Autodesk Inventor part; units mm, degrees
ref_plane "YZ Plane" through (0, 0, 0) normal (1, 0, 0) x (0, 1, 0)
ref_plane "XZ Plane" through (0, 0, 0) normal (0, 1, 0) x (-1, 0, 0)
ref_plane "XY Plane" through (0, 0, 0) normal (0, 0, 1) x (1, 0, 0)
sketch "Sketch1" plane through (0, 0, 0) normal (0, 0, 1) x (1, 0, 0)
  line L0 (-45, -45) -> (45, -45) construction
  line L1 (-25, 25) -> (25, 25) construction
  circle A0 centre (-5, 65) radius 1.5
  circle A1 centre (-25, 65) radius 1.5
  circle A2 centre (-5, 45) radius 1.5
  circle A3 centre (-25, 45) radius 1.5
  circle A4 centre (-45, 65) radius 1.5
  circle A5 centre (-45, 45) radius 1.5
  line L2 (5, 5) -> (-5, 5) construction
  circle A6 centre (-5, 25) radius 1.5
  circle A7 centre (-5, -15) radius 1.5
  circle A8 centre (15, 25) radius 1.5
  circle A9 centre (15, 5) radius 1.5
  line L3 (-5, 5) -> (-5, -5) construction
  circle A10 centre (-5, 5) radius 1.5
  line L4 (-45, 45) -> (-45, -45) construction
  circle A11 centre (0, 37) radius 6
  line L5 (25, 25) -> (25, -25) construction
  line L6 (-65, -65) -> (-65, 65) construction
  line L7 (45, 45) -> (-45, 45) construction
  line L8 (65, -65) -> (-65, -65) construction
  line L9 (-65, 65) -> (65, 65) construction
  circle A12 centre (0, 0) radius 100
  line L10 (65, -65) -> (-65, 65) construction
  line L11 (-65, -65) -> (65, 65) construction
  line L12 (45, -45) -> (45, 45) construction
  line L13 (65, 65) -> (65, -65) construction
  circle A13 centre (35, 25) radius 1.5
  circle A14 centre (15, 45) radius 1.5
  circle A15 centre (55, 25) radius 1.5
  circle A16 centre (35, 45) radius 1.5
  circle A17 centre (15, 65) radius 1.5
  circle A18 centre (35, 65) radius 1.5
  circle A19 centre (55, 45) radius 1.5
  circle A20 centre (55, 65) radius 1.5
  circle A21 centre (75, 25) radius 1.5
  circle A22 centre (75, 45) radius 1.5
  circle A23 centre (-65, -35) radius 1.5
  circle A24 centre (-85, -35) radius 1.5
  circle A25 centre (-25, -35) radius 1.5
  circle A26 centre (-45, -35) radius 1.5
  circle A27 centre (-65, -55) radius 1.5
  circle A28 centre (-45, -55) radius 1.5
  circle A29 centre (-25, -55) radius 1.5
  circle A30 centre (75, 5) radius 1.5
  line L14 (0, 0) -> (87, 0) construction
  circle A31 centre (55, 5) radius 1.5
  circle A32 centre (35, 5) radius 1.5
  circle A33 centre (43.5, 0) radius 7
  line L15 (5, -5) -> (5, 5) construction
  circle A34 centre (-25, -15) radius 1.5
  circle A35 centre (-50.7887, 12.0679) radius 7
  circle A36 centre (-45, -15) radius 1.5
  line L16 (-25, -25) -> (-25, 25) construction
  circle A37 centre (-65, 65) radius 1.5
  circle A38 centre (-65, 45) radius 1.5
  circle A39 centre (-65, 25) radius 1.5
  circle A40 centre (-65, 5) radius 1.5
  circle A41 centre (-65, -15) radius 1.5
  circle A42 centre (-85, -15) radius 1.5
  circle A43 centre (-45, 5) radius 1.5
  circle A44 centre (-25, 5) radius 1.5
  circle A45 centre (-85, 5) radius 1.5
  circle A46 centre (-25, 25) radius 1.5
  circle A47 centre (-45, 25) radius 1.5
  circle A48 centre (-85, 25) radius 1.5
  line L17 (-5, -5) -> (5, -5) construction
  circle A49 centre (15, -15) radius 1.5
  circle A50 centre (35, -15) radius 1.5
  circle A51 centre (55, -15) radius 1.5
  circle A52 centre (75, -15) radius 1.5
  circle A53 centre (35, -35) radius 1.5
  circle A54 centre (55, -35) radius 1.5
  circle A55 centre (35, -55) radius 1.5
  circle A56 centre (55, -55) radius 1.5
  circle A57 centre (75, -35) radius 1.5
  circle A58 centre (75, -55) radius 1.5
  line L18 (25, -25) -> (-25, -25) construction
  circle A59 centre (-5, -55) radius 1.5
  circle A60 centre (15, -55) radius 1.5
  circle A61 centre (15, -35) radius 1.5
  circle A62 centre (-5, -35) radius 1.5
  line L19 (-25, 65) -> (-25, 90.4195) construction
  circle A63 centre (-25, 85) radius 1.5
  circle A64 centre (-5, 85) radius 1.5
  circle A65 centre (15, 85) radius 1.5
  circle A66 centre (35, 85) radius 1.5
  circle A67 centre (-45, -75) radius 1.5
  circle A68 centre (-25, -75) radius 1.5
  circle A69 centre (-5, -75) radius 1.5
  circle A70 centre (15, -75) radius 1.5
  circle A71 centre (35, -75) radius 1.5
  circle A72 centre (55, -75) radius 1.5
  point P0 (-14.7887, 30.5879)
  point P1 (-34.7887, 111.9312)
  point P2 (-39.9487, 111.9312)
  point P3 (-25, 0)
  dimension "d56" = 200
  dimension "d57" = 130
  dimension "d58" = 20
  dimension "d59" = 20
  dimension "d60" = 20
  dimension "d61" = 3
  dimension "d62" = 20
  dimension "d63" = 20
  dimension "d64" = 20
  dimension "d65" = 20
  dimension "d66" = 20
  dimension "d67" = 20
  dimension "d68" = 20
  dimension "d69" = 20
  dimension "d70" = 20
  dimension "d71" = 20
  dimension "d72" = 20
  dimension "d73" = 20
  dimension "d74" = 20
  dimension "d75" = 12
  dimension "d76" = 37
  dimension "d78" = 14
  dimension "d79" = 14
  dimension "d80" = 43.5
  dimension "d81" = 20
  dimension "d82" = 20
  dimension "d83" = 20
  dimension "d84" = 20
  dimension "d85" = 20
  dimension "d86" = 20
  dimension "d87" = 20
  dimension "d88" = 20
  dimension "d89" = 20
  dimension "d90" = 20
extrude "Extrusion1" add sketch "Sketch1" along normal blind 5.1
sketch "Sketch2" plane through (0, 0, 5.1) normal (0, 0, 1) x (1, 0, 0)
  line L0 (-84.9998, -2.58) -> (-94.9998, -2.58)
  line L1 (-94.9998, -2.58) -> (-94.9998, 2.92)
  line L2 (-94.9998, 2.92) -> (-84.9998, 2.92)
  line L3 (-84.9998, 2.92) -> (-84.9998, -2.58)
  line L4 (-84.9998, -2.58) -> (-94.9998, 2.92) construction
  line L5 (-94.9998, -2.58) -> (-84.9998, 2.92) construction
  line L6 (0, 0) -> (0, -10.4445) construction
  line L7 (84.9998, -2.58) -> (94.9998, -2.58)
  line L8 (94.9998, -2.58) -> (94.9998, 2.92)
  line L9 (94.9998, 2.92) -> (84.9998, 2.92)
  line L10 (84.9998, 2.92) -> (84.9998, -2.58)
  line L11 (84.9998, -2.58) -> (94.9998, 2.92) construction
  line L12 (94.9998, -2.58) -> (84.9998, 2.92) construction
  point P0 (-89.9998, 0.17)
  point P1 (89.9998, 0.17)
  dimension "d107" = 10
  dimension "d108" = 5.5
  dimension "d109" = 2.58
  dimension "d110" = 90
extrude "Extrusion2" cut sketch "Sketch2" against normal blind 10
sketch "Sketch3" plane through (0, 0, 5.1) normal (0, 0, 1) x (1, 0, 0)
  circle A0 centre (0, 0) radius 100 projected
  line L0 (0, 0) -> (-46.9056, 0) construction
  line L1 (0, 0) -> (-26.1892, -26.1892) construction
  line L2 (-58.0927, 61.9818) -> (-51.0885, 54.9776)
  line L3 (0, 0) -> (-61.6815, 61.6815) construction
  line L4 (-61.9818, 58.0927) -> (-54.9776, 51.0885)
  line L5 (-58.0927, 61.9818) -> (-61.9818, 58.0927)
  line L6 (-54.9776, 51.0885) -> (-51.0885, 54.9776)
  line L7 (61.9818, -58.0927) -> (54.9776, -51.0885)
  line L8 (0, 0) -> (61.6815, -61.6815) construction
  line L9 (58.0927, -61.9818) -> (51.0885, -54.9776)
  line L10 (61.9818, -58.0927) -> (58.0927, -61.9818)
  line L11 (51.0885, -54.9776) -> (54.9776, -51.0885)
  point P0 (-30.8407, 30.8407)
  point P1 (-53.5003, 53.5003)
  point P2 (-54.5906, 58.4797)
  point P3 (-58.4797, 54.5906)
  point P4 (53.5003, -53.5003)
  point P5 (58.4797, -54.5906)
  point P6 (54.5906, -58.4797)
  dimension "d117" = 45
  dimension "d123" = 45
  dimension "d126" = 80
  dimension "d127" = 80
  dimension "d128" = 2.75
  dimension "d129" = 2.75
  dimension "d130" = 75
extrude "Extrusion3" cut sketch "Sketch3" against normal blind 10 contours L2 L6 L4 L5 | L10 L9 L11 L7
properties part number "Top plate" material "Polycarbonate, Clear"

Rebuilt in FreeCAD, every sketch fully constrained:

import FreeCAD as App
import Part
import Sketcher
from FreeCAD import Vector
Q = App.Units.Quantity


def add_polygon(sketch, points):
    """Adds a closed chain of lines whose ends are joined by coincident constraints."""
    first, n = sketch.GeometryCount, len(points)
    for a, b in zip(points, points[1:] + points[:1]):
        sketch.addGeometry(Part.LineSegment(App.Vector(*a, 0), App.Vector(*b, 0)), False)
    for i in range(n):
        sketch.addConstraint(Sketcher.Constraint("Coincident", first + i, 2, first + (i + 1) % n, 1))

doc = App.newDocument("Part")
body = doc.addObject("PartDesign::Body", "Body")

sketch1 = body.newObject("Sketcher::SketchObject", "Sketch")
sketch1.AttachmentSupport = (doc.getObject("XY_Plane"), [""])
sketch1.MapMode = "FlatFace"
sketch1.addGeometry(Part.Circle(Vector(0, 0, 0), Vector(0, 0, 1), 100), False)
sketch1.addGeometry(Part.Circle(Vector(-65, -55, 0), Vector(0, 0, 1), 1.5), False)
sketch1.addGeometry(Part.Circle(Vector(-45, -75, 0), Vector(0, 0, 1), 1.5), False)
sketch1.addGeometry(Part.Circle(Vector(-45, -55, 0), Vector(0, 0, 1), 1.5), False)
sketch1.addGeometry(Part.Circle(Vector(-25, -75, 0), Vector(0, 0, 1), 1.5), False)
sketch1.addGeometry(Part.Circle(Vector(-5, -75, 0), Vector(0, 0, 1), 1.5), False)
sketch1.addGeometry(Part.Circle(Vector(-25, -55, 0), Vector(0, 0, 1), 1.5), False)
sketch1.addGeometry(Part.Circle(Vector(-5, -55, 0), Vector(0, 0, 1), 1.5), False)
sketch1.addGeometry(Part.Circle(Vector(-85, -35, 0), Vector(0, 0, 1), 1.5), False)
sketch1.addGeometry(Part.Circle(Vector(-65, -35, 0), Vector(0, 0, 1), 1.5), False)
sketch1.addGeometry(Part.Circle(Vector(-85, -15, 0), Vector(0, 0, 1), 1.5), False)
sketch1.addGeometry(Part.Circle(Vector(-65, -15, 0), Vector(0, 0, 1), 1.5), False)
sketch1.addGeometry(Part.Circle(Vector(-45, -35, 0), Vector(0, 0, 1), 1.5), False)
sketch1.addGeometry(Part.Circle(Vector(-25, -35, 0), Vector(0, 0, 1), 1.5), False)
sketch1.addGeometry(Part.Circle(Vector(-5, -35, 0), Vector(0, 0, 1), 1.5), False)
sketch1.addGeometry(Part.Circle(Vector(-45, -15, 0), Vector(0, 0, 1), 1.5), False)
sketch1.addGeometry(Part.Circle(Vector(-25, -15, 0), Vector(0, 0, 1), 1.5), False)
sketch1.addGeometry(Part.Circle(Vector(-5, -15, 0), Vector(0, 0, 1), 1.5), False)
sketch1.addGeometry(Part.Circle(Vector(15, -75, 0), Vector(0, 0, 1), 1.5), False)
sketch1.addGeometry(Part.Circle(Vector(15, -55, 0), Vector(0, 0, 1), 1.5), False)
sketch1.addGeometry(Part.Circle(Vector(35, -75, 0), Vector(0, 0, 1), 1.5), False)
sketch1.addGeometry(Part.Circle(Vector(35, -55, 0), Vector(0, 0, 1), 1.5), False)
sketch1.addGeometry(Part.Circle(Vector(55, -75, 0), Vector(0, 0, 1), 1.5), False)
sketch1.addGeometry(Part.Circle(Vector(55, -55, 0), Vector(0, 0, 1), 1.5), False)
sketch1.addGeometry(Part.Circle(Vector(75, -55, 0), Vector(0, 0, 1), 1.5), False)
sketch1.addGeometry(Part.Circle(Vector(15, -35, 0), Vector(0, 0, 1), 1.5), False)
sketch1.addGeometry(Part.Circle(Vector(35, -35, 0), Vector(0, 0, 1), 1.5), False)
sketch1.addGeometry(Part.Circle(Vector(15, -15, 0), Vector(0, 0, 1), 1.5), False)
sketch1.addGeometry(Part.Circle(Vector(35, -15, 0), Vector(0, 0, 1), 1.5), False)
sketch1.addGeometry(Part.Circle(Vector(55, -35, 0), Vector(0, 0, 1), 1.5), False)
sketch1.addGeometry(Part.Circle(Vector(75, -35, 0), Vector(0, 0, 1), 1.5), False)
sketch1.addGeometry(Part.Circle(Vector(55, -15, 0), Vector(0, 0, 1), 1.5), False)
sketch1.addGeometry(Part.Circle(Vector(75, -15, 0), Vector(0, 0, 1), 1.5), False)
sketch1.addGeometry(Part.Circle(Vector(-85, 5, 0), Vector(0, 0, 1), 1.5), False)
sketch1.addGeometry(Part.Circle(Vector(-65, 5, 0), Vector(0, 0, 1), 1.5), False)
sketch1.addGeometry(Part.Circle(Vector(-50.8, 12.1, 0), Vector(0, 0, 1), 7), False)
sketch1.addGeometry(Part.Circle(Vector(-85, 25, 0), Vector(0, 0, 1), 1.5), False)
sketch1.addGeometry(Part.Circle(Vector(-65, 25, 0), Vector(0, 0, 1), 1.5), False)
sketch1.addGeometry(Part.Circle(Vector(-65, 45, 0), Vector(0, 0, 1), 1.5), False)
sketch1.addGeometry(Part.Circle(Vector(-45, 5, 0), Vector(0, 0, 1), 1.5), False)
sketch1.addGeometry(Part.Circle(Vector(-25, 5, 0), Vector(0, 0, 1), 1.5), False)
sketch1.addGeometry(Part.Circle(Vector(-5, 5, 0), Vector(0, 0, 1), 1.5), False)
sketch1.addGeometry(Part.Circle(Vector(-45, 25, 0), Vector(0, 0, 1), 1.5), False)
sketch1.addGeometry(Part.Circle(Vector(-45, 45, 0), Vector(0, 0, 1), 1.5), False)
sketch1.addGeometry(Part.Circle(Vector(-25, 25, 0), Vector(0, 0, 1), 1.5), False)
sketch1.addGeometry(Part.Circle(Vector(-5, 25, 0), Vector(0, 0, 1), 1.5), False)
sketch1.addGeometry(Part.Circle(Vector(-25, 45, 0), Vector(0, 0, 1), 1.5), False)
sketch1.addGeometry(Part.Circle(Vector(-5, 45, 0), Vector(0, 0, 1), 1.5), False)
sketch1.addGeometry(Part.Circle(Vector(-65, 65, 0), Vector(0, 0, 1), 1.5), False)
sketch1.addGeometry(Part.Circle(Vector(-45, 65, 0), Vector(0, 0, 1), 1.5), False)
sketch1.addGeometry(Part.Circle(Vector(-25, 65, 0), Vector(0, 0, 1), 1.5), False)
sketch1.addGeometry(Part.Circle(Vector(-5, 65, 0), Vector(0, 0, 1), 1.5), False)
sketch1.addGeometry(Part.Circle(Vector(-25, 85, 0), Vector(0, 0, 1), 1.5), False)
sketch1.addGeometry(Part.Circle(Vector(-5, 85, 0), Vector(0, 0, 1), 1.5), False)
sketch1.addGeometry(Part.Circle(Vector(15, 5, 0), Vector(0, 0, 1), 1.5), False)
sketch1.addGeometry(Part.Circle(Vector(35, 5, 0), Vector(0, 0, 1), 1.5), False)
sketch1.addGeometry(Part.Circle(Vector(43.5, 0, 0), Vector(0, 0, 1), 7), False)
sketch1.addGeometry(Part.Circle(Vector(0, 37, 0), Vector(0, 0, 1), 6), False)
sketch1.addGeometry(Part.Circle(Vector(15, 25, 0), Vector(0, 0, 1), 1.5), False)
sketch1.addGeometry(Part.Circle(Vector(15, 45, 0), Vector(0, 0, 1), 1.5), False)
sketch1.addGeometry(Part.Circle(Vector(35, 25, 0), Vector(0, 0, 1), 1.5), False)
sketch1.addGeometry(Part.Circle(Vector(35, 45, 0), Vector(0, 0, 1), 1.5), False)
sketch1.addGeometry(Part.Circle(Vector(55, 5, 0), Vector(0, 0, 1), 1.5), False)
sketch1.addGeometry(Part.Circle(Vector(75, 5, 0), Vector(0, 0, 1), 1.5), False)
sketch1.addGeometry(Part.Circle(Vector(55, 25, 0), Vector(0, 0, 1), 1.5), False)
sketch1.addGeometry(Part.Circle(Vector(55, 45, 0), Vector(0, 0, 1), 1.5), False)
sketch1.addGeometry(Part.Circle(Vector(75, 25, 0), Vector(0, 0, 1), 1.5), False)
sketch1.addGeometry(Part.Circle(Vector(75, 45, 0), Vector(0, 0, 1), 1.5), False)
sketch1.addGeometry(Part.Circle(Vector(15, 65, 0), Vector(0, 0, 1), 1.5), False)
sketch1.addGeometry(Part.Circle(Vector(35, 65, 0), Vector(0, 0, 1), 1.5), False)
sketch1.addGeometry(Part.Circle(Vector(15, 85, 0), Vector(0, 0, 1), 1.5), False)
sketch1.addGeometry(Part.Circle(Vector(35, 85, 0), Vector(0, 0, 1), 1.5), False)
sketch1.addGeometry(Part.Circle(Vector(55, 65, 0), Vector(0, 0, 1), 1.5), False)
sketch1.addConstraint(Sketcher.Constraint("Coincident", 0, 3, -1, 1))
sketch1.addConstraint(Sketcher.Constraint("Equal", 1, 2))
sketch1.addConstraint(Sketcher.Constraint("Equal", 2, 3))
sketch1.addConstraint(Sketcher.Constraint("Equal", 3, 4))
sketch1.addConstraint(Sketcher.Constraint("Equal", 4, 5))
sketch1.addConstraint(Sketcher.Constraint("Equal", 5, 6))
sketch1.addConstraint(Sketcher.Constraint("Equal", 6, 7))
sketch1.addConstraint(Sketcher.Constraint("Equal", 7, 8))
sketch1.addConstraint(Sketcher.Constraint("Equal", 8, 9))
sketch1.addConstraint(Sketcher.Constraint("Equal", 9, 10))
sketch1.addConstraint(Sketcher.Constraint("Equal", 10, 11))
sketch1.addConstraint(Sketcher.Constraint("Equal", 11, 12))
sketch1.addConstraint(Sketcher.Constraint("Equal", 12, 13))
sketch1.addConstraint(Sketcher.Constraint("Equal", 13, 14))
sketch1.addConstraint(Sketcher.Constraint("Equal", 14, 15))
sketch1.addConstraint(Sketcher.Constraint("Equal", 15, 16))
sketch1.addConstraint(Sketcher.Constraint("Equal", 16, 17))
sketch1.addConstraint(Sketcher.Constraint("Equal", 17, 18))
sketch1.addConstraint(Sketcher.Constraint("Equal", 18, 19))
sketch1.addConstraint(Sketcher.Constraint("Equal", 19, 20))
sketch1.addConstraint(Sketcher.Constraint("Equal", 20, 21))
sketch1.addConstraint(Sketcher.Constraint("Equal", 21, 22))
sketch1.addConstraint(Sketcher.Constraint("Equal", 22, 23))
sketch1.addConstraint(Sketcher.Constraint("Equal", 23, 24))
sketch1.addConstraint(Sketcher.Constraint("Equal", 24, 25))
sketch1.addConstraint(Sketcher.Constraint("Equal", 25, 26))
sketch1.addConstraint(Sketcher.Constraint("Equal", 26, 27))
sketch1.addConstraint(Sketcher.Constraint("Equal", 27, 28))
sketch1.addConstraint(Sketcher.Constraint("Equal", 28, 29))
sketch1.addConstraint(Sketcher.Constraint("Equal", 29, 30))
sketch1.addConstraint(Sketcher.Constraint("Equal", 30, 31))
sketch1.addConstraint(Sketcher.Constraint("Equal", 31, 32))
sketch1.addConstraint(Sketcher.Constraint("Equal", 32, 33))
sketch1.addConstraint(Sketcher.Constraint("Equal", 33, 34))
sketch1.addConstraint(Sketcher.Constraint("Equal", 34, 36))
sketch1.addConstraint(Sketcher.Constraint("Equal", 36, 37))
sketch1.addConstraint(Sketcher.Constraint("Equal", 37, 38))
sketch1.addConstraint(Sketcher.Constraint("Equal", 38, 39))
sketch1.addConstraint(Sketcher.Constraint("Equal", 39, 40))
sketch1.addConstraint(Sketcher.Constraint("Equal", 40, 41))
sketch1.addConstraint(Sketcher.Constraint("Equal", 41, 42))
sketch1.addConstraint(Sketcher.Constraint("Equal", 42, 43))
sketch1.addConstraint(Sketcher.Constraint("Equal", 43, 44))
sketch1.addConstraint(Sketcher.Constraint("Equal", 44, 45))
sketch1.addConstraint(Sketcher.Constraint("Equal", 45, 46))
sketch1.addConstraint(Sketcher.Constraint("Equal", 46, 47))
sketch1.addConstraint(Sketcher.Constraint("Equal", 47, 48))
sketch1.addConstraint(Sketcher.Constraint("Equal", 48, 49))
sketch1.addConstraint(Sketcher.Constraint("Equal", 49, 50))
sketch1.addConstraint(Sketcher.Constraint("Equal", 50, 51))
sketch1.addConstraint(Sketcher.Constraint("Equal", 51, 52))
sketch1.addConstraint(Sketcher.Constraint("Equal", 52, 53))
sketch1.addConstraint(Sketcher.Constraint("Equal", 53, 54))
sketch1.addConstraint(Sketcher.Constraint("Equal", 54, 55))
sketch1.addConstraint(Sketcher.Constraint("Equal", 35, 56))
sketch1.addConstraint(Sketcher.Constraint("Equal", 55, 58))
sketch1.addConstraint(Sketcher.Constraint("Equal", 58, 59))
sketch1.addConstraint(Sketcher.Constraint("Equal", 59, 60))
sketch1.addConstraint(Sketcher.Constraint("Equal", 60, 61))
sketch1.addConstraint(Sketcher.Constraint("Equal", 61, 62))
sketch1.addConstraint(Sketcher.Constraint("Equal", 62, 63))
sketch1.addConstraint(Sketcher.Constraint("Equal", 63, 64))
sketch1.addConstraint(Sketcher.Constraint("Equal", 64, 65))
sketch1.addConstraint(Sketcher.Constraint("Equal", 65, 66))
sketch1.addConstraint(Sketcher.Constraint("Equal", 66, 67))
sketch1.addConstraint(Sketcher.Constraint("Equal", 67, 68))
sketch1.addConstraint(Sketcher.Constraint("Equal", 68, 69))
sketch1.addConstraint(Sketcher.Constraint("Equal", 69, 70))
sketch1.addConstraint(Sketcher.Constraint("Equal", 70, 71))
sketch1.addConstraint(Sketcher.Constraint("Equal", 71, 72))
sketch1.addConstraint(Sketcher.Constraint("PointOnObject", 56, 3, -1))
sketch1.addConstraint(Sketcher.Constraint("PointOnObject", 57, 3, -2))
sketch1.addConstraint(Sketcher.Constraint("Horizontal", 1, 3, 3, 3))
sketch1.addConstraint(Sketcher.Constraint("Horizontal", 2, 3, 4, 3))
sketch1.addConstraint(Sketcher.Constraint("Horizontal", 4, 3, 5, 3))
sketch1.addConstraint(Sketcher.Constraint("Horizontal", 3, 3, 6, 3))
sketch1.addConstraint(Sketcher.Constraint("Horizontal", 6, 3, 7, 3))
sketch1.addConstraint(Sketcher.Constraint("Horizontal", 8, 3, 9, 3))
sketch1.addConstraint(Sketcher.Constraint("Horizontal", 10, 3, 11, 3))
sketch1.addConstraint(Sketcher.Constraint("Horizontal", 9, 3, 12, 3))
sketch1.addConstraint(Sketcher.Constraint("Horizontal", 12, 3, 13, 3))
sketch1.addConstraint(Sketcher.Constraint("Horizontal", 13, 3, 14, 3))
sketch1.addConstraint(Sketcher.Constraint("Horizontal", 11, 3, 15, 3))
sketch1.addConstraint(Sketcher.Constraint("Horizontal", 15, 3, 16, 3))
sketch1.addConstraint(Sketcher.Constraint("Horizontal", 16, 3, 17, 3))
sketch1.addConstraint(Sketcher.Constraint("Horizontal", 5, 3, 18, 3))
sketch1.addConstraint(Sketcher.Constraint("Horizontal", 7, 3, 19, 3))
sketch1.addConstraint(Sketcher.Constraint("Horizontal", 18, 3, 20, 3))
sketch1.addConstraint(Sketcher.Constraint("Horizontal", 19, 3, 21, 3))
sketch1.addConstraint(Sketcher.Constraint("Horizontal", 20, 3, 22, 3))
sketch1.addConstraint(Sketcher.Constraint("Horizontal", 21, 3, 23, 3))
sketch1.addConstraint(Sketcher.Constraint("Horizontal", 23, 3, 24, 3))
sketch1.addConstraint(Sketcher.Constraint("Horizontal", 14, 3, 25, 3))
sketch1.addConstraint(Sketcher.Constraint("Horizontal", 25, 3, 26, 3))
sketch1.addConstraint(Sketcher.Constraint("Horizontal", 17, 3, 27, 3))
sketch1.addConstraint(Sketcher.Constraint("Horizontal", 27, 3, 28, 3))
sketch1.addConstraint(Sketcher.Constraint("Horizontal", 26, 3, 29, 3))
sketch1.addConstraint(Sketcher.Constraint("Horizontal", 29, 3, 30, 3))
sketch1.addConstraint(Sketcher.Constraint("Horizontal", 28, 3, 31, 3))
sketch1.addConstraint(Sketcher.Constraint("Horizontal", 31, 3, 32, 3))
sketch1.addConstraint(Sketcher.Constraint("Horizontal", 33, 3, 34, 3))
sketch1.addConstraint(Sketcher.Constraint("Horizontal", 36, 3, 37, 3))
sketch1.addConstraint(Sketcher.Constraint("Horizontal", 34, 3, 39, 3))
sketch1.addConstraint(Sketcher.Constraint("Horizontal", 39, 3, 40, 3))
sketch1.addConstraint(Sketcher.Constraint("Horizontal", 40, 3, 41, 3))
sketch1.addConstraint(Sketcher.Constraint("Horizontal", 37, 3, 42, 3))
sketch1.addConstraint(Sketcher.Constraint("Horizontal", 38, 3, 43, 3))
sketch1.addConstraint(Sketcher.Constraint("Horizontal", 42, 3, 44, 3))
sketch1.addConstraint(Sketcher.Constraint("Horizontal", 44, 3, 45, 3))
sketch1.addConstraint(Sketcher.Constraint("Horizontal", 43, 3, 46, 3))
sketch1.addConstraint(Sketcher.Constraint("Horizontal", 46, 3, 47, 3))
sketch1.addConstraint(Sketcher.Constraint("Horizontal", 48, 3, 49, 3))
sketch1.addConstraint(Sketcher.Constraint("Horizontal", 49, 3, 50, 3))
sketch1.addConstraint(Sketcher.Constraint("Horizontal", 50, 3, 51, 3))
sketch1.addConstraint(Sketcher.Constraint("Horizontal", 52, 3, 53, 3))
sketch1.addConstraint(Sketcher.Constraint("Horizontal", 41, 3, 54, 3))
sketch1.addConstraint(Sketcher.Constraint("Horizontal", 54, 3, 55, 3))
sketch1.addConstraint(Sketcher.Constraint("Horizontal", 45, 3, 58, 3))
sketch1.addConstraint(Sketcher.Constraint("Horizontal", 47, 3, 59, 3))
sketch1.addConstraint(Sketcher.Constraint("Horizontal", 58, 3, 60, 3))
sketch1.addConstraint(Sketcher.Constraint("Horizontal", 59, 3, 61, 3))
sketch1.addConstraint(Sketcher.Constraint("Horizontal", 55, 3, 62, 3))
sketch1.addConstraint(Sketcher.Constraint("Horizontal", 62, 3, 63, 3))
sketch1.addConstraint(Sketcher.Constraint("Horizontal", 60, 3, 64, 3))
sketch1.addConstraint(Sketcher.Constraint("Horizontal", 61, 3, 65, 3))
sketch1.addConstraint(Sketcher.Constraint("Horizontal", 64, 3, 66, 3))
sketch1.addConstraint(Sketcher.Constraint("Horizontal", 65, 3, 67, 3))
sketch1.addConstraint(Sketcher.Constraint("Horizontal", 51, 3, 68, 3))
sketch1.addConstraint(Sketcher.Constraint("Horizontal", 68, 3, 69, 3))
sketch1.addConstraint(Sketcher.Constraint("Horizontal", 53, 3, 70, 3))
sketch1.addConstraint(Sketcher.Constraint("Horizontal", 70, 3, 71, 3))
sketch1.addConstraint(Sketcher.Constraint("Horizontal", 69, 3, 72, 3))
sketch1.addConstraint(Sketcher.Constraint("Vertical", 2, 3, 3, 3))
sketch1.addConstraint(Sketcher.Constraint("Vertical", 4, 3, 6, 3))
sketch1.addConstraint(Sketcher.Constraint("Vertical", 5, 3, 7, 3))
sketch1.addConstraint(Sketcher.Constraint("Vertical", 1, 3, 9, 3))
sketch1.addConstraint(Sketcher.Constraint("Vertical", 8, 3, 10, 3))
sketch1.addConstraint(Sketcher.Constraint("Vertical", 9, 3, 11, 3))
sketch1.addConstraint(Sketcher.Constraint("Vertical", 3, 3, 12, 3))
sketch1.addConstraint(Sketcher.Constraint("Vertical", 6, 3, 13, 3))
sketch1.addConstraint(Sketcher.Constraint("Vertical", 7, 3, 14, 3))
sketch1.addConstraint(Sketcher.Constraint("Vertical", 12, 3, 15, 3))
sketch1.addConstraint(Sketcher.Constraint("Vertical", 13, 3, 16, 3))
sketch1.addConstraint(Sketcher.Constraint("Vertical", 14, 3, 17, 3))
sketch1.addConstraint(Sketcher.Constraint("Vertical", 18, 3, 19, 3))
sketch1.addConstraint(Sketcher.Constraint("Vertical", 20, 3, 21, 3))
sketch1.addConstraint(Sketcher.Constraint("Vertical", 22, 3, 23, 3))
sketch1.addConstraint(Sketcher.Constraint("Vertical", 19, 3, 25, 3))
sketch1.addConstraint(Sketcher.Constraint("Vertical", 21, 3, 26, 3))
sketch1.addConstraint(Sketcher.Constraint("Vertical", 25, 3, 27, 3))
sketch1.addConstraint(Sketcher.Constraint("Vertical", 26, 3, 28, 3))
sketch1.addConstraint(Sketcher.Constraint("Vertical", 23, 3, 29, 3))
sketch1.addConstraint(Sketcher.Constraint("Vertical", 24, 3, 30, 3))
sketch1.addConstraint(Sketcher.Constraint("Vertical", 29, 3, 31, 3))
sketch1.addConstraint(Sketcher.Constraint("Vertical", 30, 3, 32, 3))
sketch1.addConstraint(Sketcher.Constraint("Vertical", 10, 3, 33, 3))
sketch1.addConstraint(Sketcher.Constraint("Vertical", 11, 3, 34, 3))
sketch1.addConstraint(Sketcher.Constraint("Vertical", 33, 3, 36, 3))
sketch1.addConstraint(Sketcher.Constraint("Vertical", 34, 3, 37, 3))
sketch1.addConstraint(Sketcher.Constraint("Vertical", 37, 3, 38, 3))
sketch1.addConstraint(Sketcher.Constraint("Vertical", 15, 3, 39, 3))
sketch1.addConstraint(Sketcher.Constraint("Vertical", 16, 3, 40, 3))
sketch1.addConstraint(Sketcher.Constraint("Vertical", 17, 3, 41, 3))
sketch1.addConstraint(Sketcher.Constraint("Vertical", 39, 3, 42, 3))
sketch1.addConstraint(Sketcher.Constraint("Vertical", 42, 3, 43, 3))
sketch1.addConstraint(Sketcher.Constraint("Vertical", 40, 3, 44, 3))
sketch1.addConstraint(Sketcher.Constraint("Vertical", 41, 3, 45, 3))
sketch1.addConstraint(Sketcher.Constraint("Vertical", 44, 3, 46, 3))
sketch1.addConstraint(Sketcher.Constraint("Vertical", 45, 3, 47, 3))
sketch1.addConstraint(Sketcher.Constraint("Vertical", 38, 3, 48, 3))
sketch1.addConstraint(Sketcher.Constraint("Vertical", 43, 3, 49, 3))
sketch1.addConstraint(Sketcher.Constraint("Vertical", 46, 3, 50, 3))
sketch1.addConstraint(Sketcher.Constraint("Vertical", 47, 3, 51, 3))
sketch1.addConstraint(Sketcher.Constraint("Vertical", 50, 3, 52, 3))
sketch1.addConstraint(Sketcher.Constraint("Vertical", 51, 3, 53, 3))
sketch1.addConstraint(Sketcher.Constraint("Vertical", 27, 3, 54, 3))
sketch1.addConstraint(Sketcher.Constraint("Vertical", 28, 3, 55, 3))
sketch1.addConstraint(Sketcher.Constraint("Vertical", 54, 3, 58, 3))
sketch1.addConstraint(Sketcher.Constraint("Vertical", 58, 3, 59, 3))
sketch1.addConstraint(Sketcher.Constraint("Vertical", 55, 3, 60, 3))
sketch1.addConstraint(Sketcher.Constraint("Vertical", 60, 3, 61, 3))
sketch1.addConstraint(Sketcher.Constraint("Vertical", 31, 3, 62, 3))
sketch1.addConstraint(Sketcher.Constraint("Vertical", 32, 3, 63, 3))
sketch1.addConstraint(Sketcher.Constraint("Vertical", 62, 3, 64, 3))
sketch1.addConstraint(Sketcher.Constraint("Vertical", 64, 3, 65, 3))
sketch1.addConstraint(Sketcher.Constraint("Vertical", 63, 3, 66, 3))
sketch1.addConstraint(Sketcher.Constraint("Vertical", 66, 3, 67, 3))
sketch1.addConstraint(Sketcher.Constraint("Vertical", 59, 3, 68, 3))
sketch1.addConstraint(Sketcher.Constraint("Vertical", 61, 3, 69, 3))
sketch1.addConstraint(Sketcher.Constraint("Vertical", 68, 3, 70, 3))
sketch1.addConstraint(Sketcher.Constraint("Vertical", 69, 3, 71, 3))
sketch1.addConstraint(Sketcher.Constraint("Vertical", 65, 3, 72, 3))
sketch1.addConstraint(Sketcher.Constraint("Diameter", 0, 200.0))
sketch1.addConstraint(Sketcher.Constraint("Diameter", 1, 3.0))
sketch1.addConstraint(Sketcher.Constraint("Diameter", 35, 14.0))
sketch1.addConstraint(Sketcher.Constraint("Diameter", 57, 12.0))
sketch1.addConstraint(Sketcher.Constraint("DistanceY", -1, 1, 57, 3, 37.0))
sketch1.addConstraint(Sketcher.Constraint("DistanceX", -1, 1, 56, 3, 43.5))
sketch1.addConstraint(Sketcher.Constraint("DistanceX", 1, 3, -1, 1, 65.0))
sketch1.addConstraint(Sketcher.Constraint("DistanceY", 1, 3, -1, 1, 55.0))
sketch1.addConstraint(Sketcher.Constraint("DistanceX", 2, 3, -1, 1, 45.0))
sketch1.addConstraint(Sketcher.Constraint("DistanceY", 2, 3, -1, 1, 75.0))
sketch1.addConstraint(Sketcher.Constraint("DistanceX", 4, 3, -1, 1, 25.0))
sketch1.addConstraint(Sketcher.Constraint("DistanceX", 5, 3, -1, 1, 5.0))
sketch1.addConstraint(Sketcher.Constraint("DistanceX", 8, 3, -1, 1, 85.0))
sketch1.addConstraint(Sketcher.Constraint("DistanceY", 8, 3, -1, 1, 35.0))
sketch1.addConstraint(Sketcher.Constraint("DistanceY", 10, 3, -1, 1, 15.0))
sketch1.addConstraint(Sketcher.Constraint("DistanceX", -1, 1, 18, 3, 15.0))
sketch1.addConstraint(Sketcher.Constraint("DistanceX", -1, 1, 20, 3, 35.0))
sketch1.addConstraint(Sketcher.Constraint("DistanceX", -1, 1, 22, 3, 55.0))
sketch1.addConstraint(Sketcher.Constraint("DistanceX", -1, 1, 24, 3, 75.0))
sketch1.addConstraint(Sketcher.Constraint("DistanceY", -1, 1, 33, 3, 5.0))
sketch1.addConstraint(Sketcher.Constraint("DistanceY", -1, 1, 36, 3, 25.0))
sketch1.addConstraint(Sketcher.Constraint("DistanceY", -1, 1, 38, 3, 45.0))
sketch1.addConstraint(Sketcher.Constraint("DistanceY", -1, 1, 48, 3, 65.0))
sketch1.addConstraint(Sketcher.Constraint("DistanceY", -1, 1, 52, 3, 85.0))
sketch1.addConstraint(Sketcher.Constraint("DistanceY", -1, 1, 35, 3, 12.068))
sketch1.addConstraint(Sketcher.Constraint("DistanceX", 35, 3, -1, 1, 50.7887))
pad1 = body.newObject("PartDesign::Pad", "Pad")
pad1.Profile = sketch1
pad1.Length = 5.1

sketch2 = body.newObject("Sketcher::SketchObject", "Sketch001")
sketch2.AttachmentSupport = (doc.getObject("XY_Plane"), [""])
sketch2.MapMode = "FlatFace"
sketch2.AttachmentOffset = App.Placement(Vector(0, 0, 5.1), App.Rotation())
add_polygon(sketch2, [(-95, -3), (-85, -3), (-85, 3), (-95, 3)])
add_polygon(sketch2, [(85, 3), (85, -3), (95, -3), (95, 3)])
sketch2.addConstraint(Sketcher.Constraint("Horizontal", 0))
sketch2.addConstraint(Sketcher.Constraint("Vertical", 1))
sketch2.addConstraint(Sketcher.Constraint("Horizontal", 2))
sketch2.addConstraint(Sketcher.Constraint("Vertical", 3))
sketch2.addConstraint(Sketcher.Constraint("Vertical", 4))
sketch2.addConstraint(Sketcher.Constraint("Horizontal", 5))
sketch2.addConstraint(Sketcher.Constraint("Vertical", 6))
sketch2.addConstraint(Sketcher.Constraint("Horizontal", 7))
sketch2.addConstraint(Sketcher.Constraint("Symmetric", 0, 2, 4, 2, -2))
sketch2.addConstraint(Sketcher.Constraint("Symmetric", 2, 2, 6, 2, -2))
sketch2.addConstraint(Sketcher.Constraint("DistanceX", 0, 1, 0, 2, 10.0))
sketch2.addConstraint(Sketcher.Constraint("DistanceY", 1, 1, 1, 2, 5.5))
sketch2.addConstraint(Sketcher.Constraint("DistanceY", 0, 2, -1, 1, 2.58))
sketch2.addConstraint(Sketcher.Constraint("DistanceX", 0, 2, -1, 1, 84.9998))
pocket1 = body.newObject("PartDesign::Pocket", "Pocket")
pocket1.Profile = sketch2
pocket1.Length = 10

sketch3 = body.newObject("Sketcher::SketchObject", "Sketch002")
sketch3.AttachmentSupport = (doc.getObject("XY_Plane"), [""])
sketch3.MapMode = "FlatFace"
sketch3.AttachmentOffset = App.Placement(Vector(0, 0, 5.1), App.Rotation())
add_polygon(sketch3, [(-51, 55), (-58, 62), (-62, 58), (-55, 51)])
add_polygon(sketch3, [(58, -62), (62, -58), (55, -51), (51, -55)])
sketch3.addConstraint(Sketcher.Constraint("Symmetric", 1, 2, 4, 2, -1, 1))
sketch3.addConstraint(Sketcher.Constraint("Symmetric", 2, 2, 5, 2, -1, 1))
sketch3.addConstraint(Sketcher.Constraint("Symmetric", 3, 2, 6, 2, -1, 1))
sketch3.addConstraint(Sketcher.Constraint("Symmetric", 0, 2, 7, 2, -1, 1))
sketch3.addConstraint(Sketcher.Constraint("Perpendicular", 0, 1))
sketch3.addConstraint(Sketcher.Constraint("Perpendicular", 1, 2))
sketch3.addConstraint(Sketcher.Constraint("Perpendicular", 2, 3))
sketch3.addConstraint(Sketcher.Constraint("Angle", 2, Q("-45 deg")))
sketch3.addConstraint(Sketcher.Constraint("Distance", 1, 5.5))
sketch3.addConstraint(Sketcher.Constraint("DistanceX", 0, 2, 2, 2, 3.115))
sketch3.addConstraint(Sketcher.Constraint("DistanceX", 3, 2, 5, 2, 106.066))
sketch3.addConstraint(Sketcher.Constraint("DistanceY", 5, 2, 3, 2, 106.066))
pocket2 = body.newObject("PartDesign::Pocket", "Pocket001")
pocket2.Profile = sketch3
pocket2.Length = 10

doc.recompute()
